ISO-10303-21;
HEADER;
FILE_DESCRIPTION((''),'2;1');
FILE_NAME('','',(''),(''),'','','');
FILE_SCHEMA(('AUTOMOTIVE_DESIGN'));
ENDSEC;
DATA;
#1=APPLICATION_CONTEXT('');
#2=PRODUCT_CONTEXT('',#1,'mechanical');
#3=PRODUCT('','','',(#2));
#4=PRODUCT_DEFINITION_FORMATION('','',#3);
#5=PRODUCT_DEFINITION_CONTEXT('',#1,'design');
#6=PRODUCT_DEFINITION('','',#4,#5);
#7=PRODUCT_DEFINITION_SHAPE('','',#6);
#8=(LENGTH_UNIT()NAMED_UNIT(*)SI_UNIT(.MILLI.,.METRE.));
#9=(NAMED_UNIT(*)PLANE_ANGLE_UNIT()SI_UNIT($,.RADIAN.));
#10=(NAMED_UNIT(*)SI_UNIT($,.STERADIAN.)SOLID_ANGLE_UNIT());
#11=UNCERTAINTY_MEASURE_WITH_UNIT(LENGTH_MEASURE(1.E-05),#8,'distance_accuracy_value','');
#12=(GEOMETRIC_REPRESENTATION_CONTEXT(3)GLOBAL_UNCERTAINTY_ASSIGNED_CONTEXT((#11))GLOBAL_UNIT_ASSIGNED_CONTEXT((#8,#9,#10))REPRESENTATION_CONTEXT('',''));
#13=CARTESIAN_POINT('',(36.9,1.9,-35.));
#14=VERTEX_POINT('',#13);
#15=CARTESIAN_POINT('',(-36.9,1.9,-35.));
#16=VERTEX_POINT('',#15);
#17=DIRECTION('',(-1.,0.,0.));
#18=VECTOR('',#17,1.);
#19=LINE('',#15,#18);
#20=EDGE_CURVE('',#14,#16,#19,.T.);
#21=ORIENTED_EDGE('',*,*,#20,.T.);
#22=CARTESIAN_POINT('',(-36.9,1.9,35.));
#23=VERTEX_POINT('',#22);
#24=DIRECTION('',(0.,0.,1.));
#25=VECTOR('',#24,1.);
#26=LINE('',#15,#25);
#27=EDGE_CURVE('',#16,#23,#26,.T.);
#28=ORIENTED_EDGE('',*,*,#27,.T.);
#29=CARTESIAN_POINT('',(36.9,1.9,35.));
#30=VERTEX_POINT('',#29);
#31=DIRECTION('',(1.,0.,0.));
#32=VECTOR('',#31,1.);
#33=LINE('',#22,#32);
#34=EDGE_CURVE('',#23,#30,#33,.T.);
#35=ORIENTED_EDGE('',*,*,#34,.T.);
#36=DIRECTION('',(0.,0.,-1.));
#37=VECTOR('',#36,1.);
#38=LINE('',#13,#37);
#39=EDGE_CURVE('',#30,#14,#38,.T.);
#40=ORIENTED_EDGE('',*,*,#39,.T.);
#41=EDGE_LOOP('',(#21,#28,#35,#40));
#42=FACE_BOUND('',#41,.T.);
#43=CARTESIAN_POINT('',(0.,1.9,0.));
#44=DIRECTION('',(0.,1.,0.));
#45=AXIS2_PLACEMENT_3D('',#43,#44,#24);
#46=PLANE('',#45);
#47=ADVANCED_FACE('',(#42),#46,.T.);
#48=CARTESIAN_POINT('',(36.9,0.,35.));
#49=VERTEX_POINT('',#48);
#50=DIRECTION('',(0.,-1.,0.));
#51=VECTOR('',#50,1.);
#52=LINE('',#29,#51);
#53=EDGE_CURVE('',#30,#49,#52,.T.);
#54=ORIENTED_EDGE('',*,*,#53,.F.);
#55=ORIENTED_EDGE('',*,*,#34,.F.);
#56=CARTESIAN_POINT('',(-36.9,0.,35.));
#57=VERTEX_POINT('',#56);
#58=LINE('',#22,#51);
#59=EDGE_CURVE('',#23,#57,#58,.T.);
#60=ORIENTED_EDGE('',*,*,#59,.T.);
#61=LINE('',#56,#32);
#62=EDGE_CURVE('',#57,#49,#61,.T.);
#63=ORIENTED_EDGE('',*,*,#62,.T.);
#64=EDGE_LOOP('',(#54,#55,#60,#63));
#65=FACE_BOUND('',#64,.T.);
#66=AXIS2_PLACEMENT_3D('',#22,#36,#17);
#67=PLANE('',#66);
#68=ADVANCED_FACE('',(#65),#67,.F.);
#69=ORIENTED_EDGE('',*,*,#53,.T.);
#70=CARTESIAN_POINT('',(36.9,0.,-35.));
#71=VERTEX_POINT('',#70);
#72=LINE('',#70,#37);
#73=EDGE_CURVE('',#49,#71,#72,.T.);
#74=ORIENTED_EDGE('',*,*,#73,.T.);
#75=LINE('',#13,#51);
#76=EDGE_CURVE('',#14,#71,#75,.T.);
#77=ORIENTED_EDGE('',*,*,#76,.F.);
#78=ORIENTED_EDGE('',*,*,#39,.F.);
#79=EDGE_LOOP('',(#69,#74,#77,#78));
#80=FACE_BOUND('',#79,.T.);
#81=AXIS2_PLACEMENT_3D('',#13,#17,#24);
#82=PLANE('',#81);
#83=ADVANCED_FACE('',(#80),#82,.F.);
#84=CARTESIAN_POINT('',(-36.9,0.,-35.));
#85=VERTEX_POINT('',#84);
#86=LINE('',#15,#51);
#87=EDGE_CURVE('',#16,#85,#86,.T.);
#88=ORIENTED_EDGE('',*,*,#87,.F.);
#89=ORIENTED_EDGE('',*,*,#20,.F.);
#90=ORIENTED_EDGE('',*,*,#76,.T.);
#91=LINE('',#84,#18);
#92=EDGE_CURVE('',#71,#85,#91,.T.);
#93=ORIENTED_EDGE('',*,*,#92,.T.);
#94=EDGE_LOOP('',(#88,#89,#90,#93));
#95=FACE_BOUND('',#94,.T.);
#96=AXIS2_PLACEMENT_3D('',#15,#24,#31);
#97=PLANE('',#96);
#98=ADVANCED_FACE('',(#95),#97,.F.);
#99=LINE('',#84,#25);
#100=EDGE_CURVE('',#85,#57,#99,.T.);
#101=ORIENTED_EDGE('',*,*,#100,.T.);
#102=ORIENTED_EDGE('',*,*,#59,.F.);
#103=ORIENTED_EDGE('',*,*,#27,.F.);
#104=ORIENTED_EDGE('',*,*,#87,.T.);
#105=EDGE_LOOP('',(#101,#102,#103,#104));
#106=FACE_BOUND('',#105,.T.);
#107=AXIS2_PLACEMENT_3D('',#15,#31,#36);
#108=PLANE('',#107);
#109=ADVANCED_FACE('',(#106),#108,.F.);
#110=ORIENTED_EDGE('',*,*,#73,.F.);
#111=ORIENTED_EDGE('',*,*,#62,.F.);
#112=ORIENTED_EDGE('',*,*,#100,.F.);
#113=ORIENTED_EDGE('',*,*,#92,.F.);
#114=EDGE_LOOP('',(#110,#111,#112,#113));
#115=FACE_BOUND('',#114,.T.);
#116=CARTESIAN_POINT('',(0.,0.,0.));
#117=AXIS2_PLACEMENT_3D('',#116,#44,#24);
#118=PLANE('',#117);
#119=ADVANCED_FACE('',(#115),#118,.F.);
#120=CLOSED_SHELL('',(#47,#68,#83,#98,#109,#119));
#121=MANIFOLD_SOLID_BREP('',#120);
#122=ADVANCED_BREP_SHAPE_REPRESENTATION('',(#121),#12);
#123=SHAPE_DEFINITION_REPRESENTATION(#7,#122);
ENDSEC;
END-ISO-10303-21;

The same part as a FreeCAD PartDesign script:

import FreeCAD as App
import Part
import Sketcher
from FreeCAD import Vector


def add_polygon(sketch, points):
    """Adds a closed chain of lines whose ends are joined by coincident constraints."""
    first, n = sketch.GeometryCount, len(points)
    for a, b in zip(points, points[1:] + points[:1]):
        sketch.addGeometry(Part.LineSegment(App.Vector(*a, 0), App.Vector(*b, 0)), False)
    for i in range(n):
        sketch.addConstraint(Sketcher.Constraint("Coincident", first + i, 2, first + (i + 1) % n, 1))

doc = App.newDocument("Part")
body = doc.addObject("PartDesign::Body", "Body")

sketch1 = doc.addObject("Sketcher::SketchObject", "Sketch")
body.addObject(sketch1)
sketch1.AttachmentSupport = (doc.XZ_Plane, [""])
sketch1.MapMode = "FlatFace"
add_polygon(sketch1, [(-37, -35), (-37, 35), (37, 35), (37, -35)])
sketch1.addConstraint([
    Sketcher.Constraint("Vertical", 0),
    Sketcher.Constraint("Horizontal", 1),
    Sketcher.Constraint("Vertical", 2),
    Sketcher.Constraint("Horizontal", 3),
    Sketcher.Constraint("Symmetric", 0, 2, 2, 2, -1, 1),
    Sketcher.Constraint("DistanceY", 0, 1, 0, 2, 70.0),
    Sketcher.Constraint("DistanceX", 1, 1, 1, 2, 73.8),
])
pad1 = doc.addObject("PartDesign::Pad", "Pad")
body.addObject(pad1)
pad1.Profile = sketch1
pad1.Length = 1.9
pad1.Reversed = True

doc.recompute()
